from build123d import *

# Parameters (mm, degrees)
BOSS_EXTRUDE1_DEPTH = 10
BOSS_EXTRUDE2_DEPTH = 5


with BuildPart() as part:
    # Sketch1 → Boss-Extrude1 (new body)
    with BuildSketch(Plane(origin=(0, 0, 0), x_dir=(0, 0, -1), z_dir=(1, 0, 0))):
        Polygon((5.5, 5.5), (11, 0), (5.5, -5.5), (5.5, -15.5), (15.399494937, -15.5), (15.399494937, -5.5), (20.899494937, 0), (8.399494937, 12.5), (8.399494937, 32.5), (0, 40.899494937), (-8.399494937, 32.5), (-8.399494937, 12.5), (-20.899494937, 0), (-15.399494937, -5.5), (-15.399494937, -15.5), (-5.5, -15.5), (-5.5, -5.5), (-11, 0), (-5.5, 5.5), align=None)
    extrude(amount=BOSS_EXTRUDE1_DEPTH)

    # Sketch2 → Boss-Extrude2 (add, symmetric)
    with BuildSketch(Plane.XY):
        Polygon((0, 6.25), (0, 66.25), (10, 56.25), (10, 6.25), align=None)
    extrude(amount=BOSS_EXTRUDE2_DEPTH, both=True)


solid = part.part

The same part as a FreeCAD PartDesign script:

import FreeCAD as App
import Part
import Sketcher
from FreeCAD import Vector

doc = App.newDocument("Part")
body = doc.addObject("PartDesign::Body", "Body")

# Sketch on YZ plane
sketch1 = body.newObject("Sketcher::SketchObject", "Sketch")
sketch1.AttachmentSupport = (doc.getObject("YZ_Plane"), [""])
sketch1.MapMode = "FlatFace"
sketch1.addGeometry(Part.LineSegment(Vector(5.5, -5.5, 0), Vector(0, -11, 0)), False)
sketch1.addGeometry(Part.LineSegment(Vector(0, -11, 0), Vector(-5.5, -5.5, 0)), False)
sketch1.addGeometry(Part.LineSegment(Vector(-5.5, -5.5, 0), Vector(-15.5, -5.5, 0)), False)
sketch1.addGeometry(Part.LineSegment(Vector(-15.5, -5.5, 0), Vector(-15.5, -15.399495, 0)), False)
sketch1.addGeometry(Part.LineSegment(Vector(-15.5, -15.399495, 0), Vector(-5.5, -15.399495, 0)), False)
sketch1.addGeometry(Part.LineSegment(Vector(-5.5, -15.399495, 0), Vector(0, -20.899495, 0)), False)
sketch1.addGeometry(Part.LineSegment(Vector(0, -20.899495, 0), Vector(12.5, -8.399495, 0)), False)
sketch1.addGeometry(Part.LineSegment(Vector(12.5, -8.399495, 0), Vector(32.5, -8.399495, 0)), False)
sketch1.addGeometry(Part.LineSegment(Vector(32.5, -8.399495, 0), Vector(40.899495, 0, 0)), False)
sketch1.addGeometry(Part.LineSegment(Vector(40.899495, 0, 0), Vector(32.5, 8.399495, 0)), False)
sketch1.addGeometry(Part.LineSegment(Vector(32.5, 8.399495, 0), Vector(12.5, 8.399495, 0)), False)
sketch1.addGeometry(Part.LineSegment(Vector(12.5, 8.399495, 0), Vector(0, 20.899495, 0)), False)
sketch1.addGeometry(Part.LineSegment(Vector(0, 20.899495, 0), Vector(-5.5, 15.399495, 0)), False)
sketch1.addGeometry(Part.LineSegment(Vector(-5.5, 15.399495, 0), Vector(-15.5, 15.399495, 0)), False)
sketch1.addGeometry(Part.LineSegment(Vector(-15.5, 15.399495, 0), Vector(-15.5, 5.5, 0)), False)
sketch1.addGeometry(Part.LineSegment(Vector(-15.5, 5.5, 0), Vector(-5.5, 5.5, 0)), False)
sketch1.addGeometry(Part.LineSegment(Vector(-5.5, 5.5, 0), Vector(0, 11, 0)), False)
sketch1.addGeometry(Part.LineSegment(Vector(0, 11, 0), Vector(5.5, 5.5, 0)), False)
sketch1.addGeometry(Part.LineSegment(Vector(5.5, 5.5, 0), Vector(5.5, -5.5, 0)), False)
sketch1.addConstraint(Sketcher.Constraint("Coincident", 0, 2, 1, 1))
sketch1.addConstraint(Sketcher.Constraint("Coincident", 1, 2, 2, 1))
sketch1.addConstraint(Sketcher.Constraint("Coincident", 2, 2, 3, 1))
sketch1.addConstraint(Sketcher.Constraint("Coincident", 3, 2, 4, 1))
sketch1.addConstraint(Sketcher.Constraint("Coincident", 4, 2, 5, 1))
sketch1.addConstraint(Sketcher.Constraint("Coincident", 5, 2, 6, 1))
sketch1.addConstraint(Sketcher.Constraint("Coincident", 6, 2, 7, 1))
sketch1.addConstraint(Sketcher.Constraint("Coincident", 7, 2, 8, 1))
sketch1.addConstraint(Sketcher.Constraint("Coincident", 8, 2, 9, 1))
sketch1.addConstraint(Sketcher.Constraint("Coincident", 9, 2, 10, 1))
sketch1.addConstraint(Sketcher.Constraint("Coincident", 10, 2, 11, 1))
sketch1.addConstraint(Sketcher.Constraint("Coincident", 11, 2, 12, 1))
sketch1.addConstraint(Sketcher.Constraint("Coincident", 12, 2, 13, 1))
sketch1.addConstraint(Sketcher.Constraint("Coincident", 13, 2, 14, 1))
sketch1.addConstraint(Sketcher.Constraint("Coincident", 14, 2, 15, 1))
sketch1.addConstraint(Sketcher.Constraint("Coincident", 15, 2, 16, 1))
sketch1.addConstraint(Sketcher.Constraint("Coincident", 16, 2, 17, 1))
sketch1.addConstraint(Sketcher.Constraint("Coincident", 17, 2, 18, 1))
sketch1.addConstraint(Sketcher.Constraint("Coincident", 18, 2, 0, 1))
sketch1.addConstraint(Sketcher.Constraint("Horizontal", 2))
sketch1.addConstraint(Sketcher.Constraint("Vertical", 3))
sketch1.addConstraint(Sketcher.Constraint("Horizontal", 4))
sketch1.addConstraint(Sketcher.Constraint("Horizontal", 7))
sketch1.addConstraint(Sketcher.Constraint("Horizontal", 10))
sketch1.addConstraint(Sketcher.Constraint("Horizontal", 13))
sketch1.addConstraint(Sketcher.Constraint("Vertical", 14))
sketch1.addConstraint(Sketcher.Constraint("Horizontal", 15))
sketch1.addConstraint(Sketcher.Constraint("Vertical", 18))
sketch1.addConstraint(Sketcher.Constraint("Symmetric", 5, 2, 11, 2, -1, 1))
sketch1.addConstraint(Sketcher.Constraint("Symmetric", 0, 2, 16, 2, -1, 1))
sketch1.addConstraint(Sketcher.Constraint("Symmetric", 1, 2, 17, 2, -1, 1))
sketch1.addConstraint(Sketcher.Constraint("Symmetric", 15, 2, 18, 2, -1, 1))
sketch1.addConstraint(Sketcher.Constraint("Symmetric", 7, 2, 9, 2, -1))
sketch1.addConstraint(Sketcher.Constraint("Symmetric", 4, 2, 12, 2, -1))
sketch1.addConstraint(Sketcher.Constraint("Symmetric", 2, 2, 14, 2, -1))
sketch1.addConstraint(Sketcher.Constraint("PointOnObject", 0, 2, -2))
sketch1.addConstraint(Sketcher.Constraint("PointOnObject", 5, 2, -2))
sketch1.addConstraint(Sketcher.Constraint("PointOnObject", 8, 2, -1))
sketch1.addConstraint(Sketcher.Constraint("Perpendicular", 0, 1))
sketch1.addConstraint(Sketcher.Constraint("Parallel", 1, 5))
sketch1.addConstraint(Sketcher.Constraint("Perpendicular", 5, 6))
sketch1.addConstraint(Sketcher.Constraint("Parallel", 6, 8))
sketch1.addConstraint(Sketcher.Constraint("Parallel", 9, 11))
sketch1.addConstraint(Sketcher.Constraint("Vertical", 1, 2, 4, 2))
sketch1.addConstraint(Sketcher.Constraint("DistanceX", 2, 2, 2, 1, 10.0))
sketch1.addConstraint(Sketcher.Constraint("DistanceX", 7, 1, 7, 2, 20.0))
sketch1.addConstraint(Sketcher.Constraint("DistanceY", 18, 2, 18, 1, 11.0))
sketch1.addConstraint(Sketcher.Constraint("DistanceY", 0, 2, -1, 1, 11.0))
sketch1.addConstraint(Sketcher.Constraint("DistanceX", 1, 2, 6, 2, 18.0))
sketch1.addConstraint(Sketcher.Constraint("Distance", 8, 11.87868))
pad1 = body.newObject("PartDesign::Pad", "Pad")
pad1.Profile = sketch1
pad1.Length = 10

# Sketch on XY plane
sketch2 = body.newObject("Sketcher::SketchObject", "Sketch001")
sketch2.AttachmentSupport = (doc.getObject("XY_Plane"), [""])
sketch2.MapMode = "FlatFace"
sketch2.addGeometry(Part.LineSegment(Vector(0, 66.25, 0), Vector(0, 6.25, 0)), False)
sketch2.addGeometry(Part.LineSegment(Vector(0, 6.25, 0), Vector(10, 6.25, 0)), False)
sketch2.addGeometry(Part.LineSegment(Vector(10, 6.25, 0), Vector(10, 56.25, 0)), False)
sketch2.addGeometry(Part.LineSegment(Vector(10, 56.25, 0), Vector(0, 66.25, 0)), False)
sketch2.addConstraint(Sketcher.Constraint("Coincident", 0, 2, 1, 1))
sketch2.addConstraint(Sketcher.Constraint("Coincident", 1, 2, 2, 1))
sketch2.addConstraint(Sketcher.Constraint("Coincident", 2, 2, 3, 1))
sketch2.addConstraint(Sketcher.Constraint("Coincident", 3, 2, 0, 1))
sketch2.addConstraint(Sketcher.Constraint("Vertical", 0))
sketch2.addConstraint(Sketcher.Constraint("Horizontal", 1))
sketch2.addConstraint(Sketcher.Constraint("Vertical", 2))
sketch2.addConstraint(Sketcher.Constraint("PointOnObject", 0, 2, -2))
sketch2.addConstraint(Sketcher.Constraint("DistanceX", 1, 1, 1, 2, 10.0))
sketch2.addConstraint(Sketcher.Constraint("DistanceY", 0, 2, 0, 1, 60.0))
sketch2.addConstraint(Sketcher.Constraint("DistanceY", 2, 1, 2, 2, 50.0))
sketch2.addConstraint(Sketcher.Constraint("DistanceY", -1, 1, 0, 2, 6.25))
pad2 = body.newObject("PartDesign::Pad", "Pad001")
pad2.Profile = sketch2
pad2.Length = 10
pad2.Midplane = True

doc.recompute()
